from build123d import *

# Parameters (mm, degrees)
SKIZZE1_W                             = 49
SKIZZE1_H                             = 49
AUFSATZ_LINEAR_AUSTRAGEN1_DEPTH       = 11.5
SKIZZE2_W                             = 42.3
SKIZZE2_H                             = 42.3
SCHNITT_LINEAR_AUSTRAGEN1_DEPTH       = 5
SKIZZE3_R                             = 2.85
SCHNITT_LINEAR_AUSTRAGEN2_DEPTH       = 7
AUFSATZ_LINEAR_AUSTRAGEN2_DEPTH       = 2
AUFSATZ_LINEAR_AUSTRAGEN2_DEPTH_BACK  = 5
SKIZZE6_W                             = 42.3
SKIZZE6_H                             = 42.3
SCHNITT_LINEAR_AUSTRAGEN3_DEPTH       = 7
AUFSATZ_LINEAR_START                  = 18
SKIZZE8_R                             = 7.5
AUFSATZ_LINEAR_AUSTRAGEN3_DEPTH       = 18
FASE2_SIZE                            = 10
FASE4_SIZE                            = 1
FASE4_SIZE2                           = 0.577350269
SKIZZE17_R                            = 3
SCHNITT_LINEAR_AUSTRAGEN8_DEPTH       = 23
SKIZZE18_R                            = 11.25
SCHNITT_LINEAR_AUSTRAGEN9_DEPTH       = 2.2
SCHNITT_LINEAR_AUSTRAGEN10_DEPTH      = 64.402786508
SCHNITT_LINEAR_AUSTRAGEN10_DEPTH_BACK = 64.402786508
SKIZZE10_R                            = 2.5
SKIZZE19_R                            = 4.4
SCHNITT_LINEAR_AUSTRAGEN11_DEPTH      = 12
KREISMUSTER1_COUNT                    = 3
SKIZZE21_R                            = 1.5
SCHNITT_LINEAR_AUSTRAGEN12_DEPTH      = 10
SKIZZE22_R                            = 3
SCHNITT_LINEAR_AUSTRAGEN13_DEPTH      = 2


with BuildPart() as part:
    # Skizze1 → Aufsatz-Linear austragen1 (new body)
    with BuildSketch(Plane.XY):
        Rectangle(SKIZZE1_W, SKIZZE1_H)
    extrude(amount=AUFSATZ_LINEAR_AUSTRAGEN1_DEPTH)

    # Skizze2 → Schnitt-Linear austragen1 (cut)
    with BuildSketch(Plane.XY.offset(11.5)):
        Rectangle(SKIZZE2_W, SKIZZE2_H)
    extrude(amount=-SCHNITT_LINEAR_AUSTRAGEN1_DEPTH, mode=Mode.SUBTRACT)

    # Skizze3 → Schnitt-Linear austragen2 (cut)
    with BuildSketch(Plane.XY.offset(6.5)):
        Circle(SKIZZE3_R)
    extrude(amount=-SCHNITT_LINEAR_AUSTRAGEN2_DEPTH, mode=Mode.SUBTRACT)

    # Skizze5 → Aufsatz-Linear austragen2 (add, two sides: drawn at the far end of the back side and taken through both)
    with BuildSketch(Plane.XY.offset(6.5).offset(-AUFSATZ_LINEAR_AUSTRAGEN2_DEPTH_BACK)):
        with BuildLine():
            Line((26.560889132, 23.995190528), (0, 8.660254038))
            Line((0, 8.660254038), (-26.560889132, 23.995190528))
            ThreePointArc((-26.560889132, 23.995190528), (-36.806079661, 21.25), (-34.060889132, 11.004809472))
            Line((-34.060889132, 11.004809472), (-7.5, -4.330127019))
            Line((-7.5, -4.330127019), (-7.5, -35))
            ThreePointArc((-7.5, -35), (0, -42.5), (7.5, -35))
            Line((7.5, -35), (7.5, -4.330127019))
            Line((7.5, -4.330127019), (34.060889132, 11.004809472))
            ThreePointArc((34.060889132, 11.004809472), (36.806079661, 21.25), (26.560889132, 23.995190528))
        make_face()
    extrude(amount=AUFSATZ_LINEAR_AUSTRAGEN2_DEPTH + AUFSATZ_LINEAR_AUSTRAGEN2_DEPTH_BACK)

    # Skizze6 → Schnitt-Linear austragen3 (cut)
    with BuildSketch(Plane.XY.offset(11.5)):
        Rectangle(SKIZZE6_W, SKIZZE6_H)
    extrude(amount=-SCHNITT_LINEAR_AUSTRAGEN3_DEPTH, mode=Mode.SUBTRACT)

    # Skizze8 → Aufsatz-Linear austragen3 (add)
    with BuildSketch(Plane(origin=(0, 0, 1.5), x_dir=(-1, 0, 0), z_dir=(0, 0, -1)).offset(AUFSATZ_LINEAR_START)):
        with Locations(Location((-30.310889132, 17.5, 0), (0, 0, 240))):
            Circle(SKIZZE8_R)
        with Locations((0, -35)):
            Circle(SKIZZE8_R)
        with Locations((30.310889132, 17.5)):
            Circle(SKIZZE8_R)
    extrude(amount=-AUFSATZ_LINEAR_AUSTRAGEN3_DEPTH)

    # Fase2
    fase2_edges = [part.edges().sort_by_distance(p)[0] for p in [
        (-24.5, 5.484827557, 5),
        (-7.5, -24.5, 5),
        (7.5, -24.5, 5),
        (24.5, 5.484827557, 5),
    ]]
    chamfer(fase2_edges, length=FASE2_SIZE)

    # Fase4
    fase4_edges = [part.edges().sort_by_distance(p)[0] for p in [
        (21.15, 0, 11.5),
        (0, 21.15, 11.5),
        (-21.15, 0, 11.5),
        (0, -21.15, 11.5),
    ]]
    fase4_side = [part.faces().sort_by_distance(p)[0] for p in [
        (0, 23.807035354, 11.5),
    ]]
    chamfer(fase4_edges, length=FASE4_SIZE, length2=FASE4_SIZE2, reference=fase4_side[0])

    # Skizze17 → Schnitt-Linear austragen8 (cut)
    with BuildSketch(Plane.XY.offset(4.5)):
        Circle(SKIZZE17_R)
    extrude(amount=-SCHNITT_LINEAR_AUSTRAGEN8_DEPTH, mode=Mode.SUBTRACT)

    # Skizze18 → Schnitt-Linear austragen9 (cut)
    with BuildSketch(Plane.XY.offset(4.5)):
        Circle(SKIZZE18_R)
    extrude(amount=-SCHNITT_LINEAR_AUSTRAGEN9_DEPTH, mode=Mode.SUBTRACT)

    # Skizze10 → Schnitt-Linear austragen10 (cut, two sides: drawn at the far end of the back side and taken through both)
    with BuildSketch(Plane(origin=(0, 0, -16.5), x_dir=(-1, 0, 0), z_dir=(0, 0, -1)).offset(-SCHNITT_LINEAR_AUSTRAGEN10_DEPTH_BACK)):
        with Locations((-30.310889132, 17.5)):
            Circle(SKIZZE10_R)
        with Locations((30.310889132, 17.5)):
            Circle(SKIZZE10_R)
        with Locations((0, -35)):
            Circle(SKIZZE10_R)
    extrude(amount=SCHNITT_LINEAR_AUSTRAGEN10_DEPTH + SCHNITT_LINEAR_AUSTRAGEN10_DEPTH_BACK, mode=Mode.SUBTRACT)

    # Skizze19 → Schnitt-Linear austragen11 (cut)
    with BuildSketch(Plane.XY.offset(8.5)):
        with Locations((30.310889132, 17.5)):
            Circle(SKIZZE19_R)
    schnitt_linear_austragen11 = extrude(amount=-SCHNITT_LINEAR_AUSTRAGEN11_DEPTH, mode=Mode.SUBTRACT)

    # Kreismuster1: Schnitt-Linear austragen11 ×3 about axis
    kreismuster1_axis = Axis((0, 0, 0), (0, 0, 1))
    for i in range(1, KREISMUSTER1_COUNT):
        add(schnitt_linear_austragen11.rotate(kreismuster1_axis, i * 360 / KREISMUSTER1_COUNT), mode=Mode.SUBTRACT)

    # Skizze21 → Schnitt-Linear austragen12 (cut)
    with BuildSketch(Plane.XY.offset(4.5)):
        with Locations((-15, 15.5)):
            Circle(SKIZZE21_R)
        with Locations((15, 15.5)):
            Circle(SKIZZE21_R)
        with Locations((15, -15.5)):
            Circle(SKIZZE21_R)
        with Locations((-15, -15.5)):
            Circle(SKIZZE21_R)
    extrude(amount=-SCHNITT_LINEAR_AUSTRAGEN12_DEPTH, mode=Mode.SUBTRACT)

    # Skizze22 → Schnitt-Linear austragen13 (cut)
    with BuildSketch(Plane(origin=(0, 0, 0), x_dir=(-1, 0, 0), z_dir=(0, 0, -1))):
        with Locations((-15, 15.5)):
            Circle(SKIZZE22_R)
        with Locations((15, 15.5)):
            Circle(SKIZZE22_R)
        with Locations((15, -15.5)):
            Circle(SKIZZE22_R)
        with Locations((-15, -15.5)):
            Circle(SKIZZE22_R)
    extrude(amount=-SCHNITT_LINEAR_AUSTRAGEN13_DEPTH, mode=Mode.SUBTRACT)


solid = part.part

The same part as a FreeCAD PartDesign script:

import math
import FreeCAD as App
import Part
import Sketcher
from FreeCAD import Vector
Q = App.Units.Quantity


def edges_at(feature, points):
    """Names of the edges that pass closest to the given points."""
    edges = feature.Shape.Edges
    near = lambda p: min(range(len(edges)), key=lambda i: edges[i].distToShape(Part.Vertex(*p))[0])
    return sorted({f"Edge{near(p) + 1}" for p in points})


def add_polygon(sketch, points):
    """Adds a closed chain of lines whose ends are joined by coincident constraints."""
    first, n = sketch.GeometryCount, len(points)
    for a, b in zip(points, points[1:] + points[:1]):
        sketch.addGeometry(Part.LineSegment(App.Vector(*a, 0), App.Vector(*b, 0)), False)
    for i in range(n):
        sketch.addConstraint(Sketcher.Constraint("Coincident", first + i, 2, first + (i + 1) % n, 1))

doc = App.newDocument("Part")
body = doc.addObject("PartDesign::Body", "Body")

# Sketch on XY plane
sketch1 = body.newObject("Sketcher::SketchObject", "Sketch")
sketch1.AttachmentSupport = (doc.getObject("XY_Plane"), [""])
sketch1.MapMode = "FlatFace"
add_polygon(sketch1, [(-24, 24), (-24, -24), (24, -24), (24, 24)])  # lines 0-3
sketch1.addConstraint(Sketcher.Constraint("Vertical", 0))
sketch1.addConstraint(Sketcher.Constraint("Horizontal", 1))
sketch1.addConstraint(Sketcher.Constraint("Vertical", 2))
sketch1.addConstraint(Sketcher.Constraint("Horizontal", 3))
sketch1.addConstraint(Sketcher.Constraint("Symmetric", 0, 2, 2, 2, -1, 1))
sketch1.addConstraint(Sketcher.Constraint("Equal", 3, 0))
sketch1.addConstraint(Sketcher.Constraint("DistanceX", 1, 1, 1, 2, Q("49 mm")))
pad1 = body.newObject("PartDesign::Pad", "Pad")
pad1.Profile = sketch1
pad1.Length = 11.5

# Sketch on XY plane
sketch2 = body.newObject("Sketcher::SketchObject", "Sketch001")
sketch2.AttachmentSupport = (doc.getObject("XY_Plane"), [""])
sketch2.MapMode = "FlatFace"
sketch2.AttachmentOffset = App.Placement(Vector(0, 0, 11.5), App.Rotation())
add_polygon(sketch2, [(-21, 21), (-21, -21), (21, -21), (21, 21)])  # lines 0-3
sketch2.addConstraint(Sketcher.Constraint("Vertical", 0))
sketch2.addConstraint(Sketcher.Constraint("Horizontal", 1))
sketch2.addConstraint(Sketcher.Constraint("Vertical", 2))
sketch2.addConstraint(Sketcher.Constraint("Horizontal", 3))
sketch2.addConstraint(Sketcher.Constraint("Symmetric", 0, 2, 2, 2, -1, 1))
sketch2.addConstraint(Sketcher.Constraint("Equal", 3, 0))
sketch2.addConstraint(Sketcher.Constraint("DistanceX", 1, 1, 1, 2, Q("42.3 mm")))
pocket1 = body.newObject("PartDesign::Pocket", "Pocket")
pocket1.Profile = sketch2
pocket1.Length = 5

# Sketch on XY plane
sketch3 = body.newObject("Sketcher::SketchObject", "Sketch002")
sketch3.AttachmentSupport = (doc.getObject("XY_Plane"), [""])
sketch3.MapMode = "FlatFace"
sketch3.AttachmentOffset = App.Placement(Vector(0, 0, 6.5), App.Rotation())
sketch3.addGeometry(Part.Circle(Vector(0, 0, 0), Vector(0, 0, 1), 2.9), False)
sketch3.addConstraint(Sketcher.Constraint("Coincident", 0, 3, -1, 1))
sketch3.addConstraint(Sketcher.Constraint("Diameter", 0, Q("5.7 mm")))
pocket2 = body.newObject("PartDesign::Pocket", "Pocket001")
pocket2.Profile = sketch3
pocket2.Length = 7

# Sketch on XY plane
sketch4 = body.newObject("Sketcher::SketchObject", "Sketch003")
sketch4.AttachmentSupport = (doc.getObject("XY_Plane"), [""])
sketch4.MapMode = "FlatFace"
sketch4.AttachmentOffset = App.Placement(Vector(0, 0, 6.5), App.Rotation())
sketch4.addGeometry(Part.LineSegment(Vector(27, 24, 0), Vector(0, 9, 0)), False)
sketch4.addGeometry(Part.LineSegment(Vector(0, 9, 0), Vector(-27, 24, 0)), False)
sketch4.addGeometry(Part.ArcOfCircle(Part.Circle(Vector(-30, 18, 0), Vector(0, 0, 1), 8), math.radians(60), math.radians(240)), False)
sketch4.addGeometry(Part.LineSegment(Vector(-34, 11, 0), Vector(-8, -4, 0)), False)
sketch4.addGeometry(Part.LineSegment(Vector(-8, -4, 0), Vector(-8, -35, 0)), False)
sketch4.addGeometry(Part.ArcOfCircle(Part.Circle(Vector(0, -35, 0), Vector(0, 0, 1), 8), math.radians(180), math.radians(360)), False)
sketch4.addGeometry(Part.LineSegment(Vector(8, -35, 0), Vector(8, -4, 0)), False)
sketch4.addGeometry(Part.LineSegment(Vector(8, -4, 0), Vector(34, 11, 0)), False)
sketch4.addGeometry(Part.ArcOfCircle(Part.Circle(Vector(30, 18, 0), Vector(0, 0, 1), 8), math.radians(-60), math.radians(120)), False)
sketch4.addConstraint(Sketcher.Constraint("Coincident", 0, 2, 1, 1))
sketch4.addConstraint(Sketcher.Constraint("Tangent", 1, 2, 2, 1))
sketch4.addConstraint(Sketcher.Constraint("Tangent", 2, 2, 3, 1))
sketch4.addConstraint(Sketcher.Constraint("Coincident", 3, 2, 4, 1))
sketch4.addConstraint(Sketcher.Constraint("Tangent", 4, 2, 5, 1))
sketch4.addConstraint(Sketcher.Constraint("Tangent", 5, 2, 6, 1))
sketch4.addConstraint(Sketcher.Constraint("Coincident", 6, 2, 7, 1))
sketch4.addConstraint(Sketcher.Constraint("Tangent", 7, 2, 8, 1))
sketch4.addConstraint(Sketcher.Constraint("Tangent", 8, 2, 0, 1))
sketch4.addConstraint(Sketcher.Constraint("Vertical", 4))
sketch4.addConstraint(Sketcher.Constraint("Vertical", 6))
sketch4.addConstraint(Sketcher.Constraint("Equal", 2, 5))
sketch4.addConstraint(Sketcher.Constraint("Equal", 5, 8))
sketch4.addConstraint(Sketcher.Constraint("Symmetric", 2, 3, 8, 3, -2))
sketch4.addConstraint(Sketcher.Constraint("Symmetric", 3, 2, 6, 2, -2))
sketch4.addConstraint(Sketcher.Constraint("PointOnObject", 0, 2, -2))
sketch4.addConstraint(Sketcher.Constraint("Parallel", 1, 3))
sketch4.addConstraint(Sketcher.Constraint("Equal", 1, 3))
sketch4.addConstraint(Sketcher.Constraint("Radius", 2, Q("7.5 mm")))
sketch4.addConstraint(Sketcher.Constraint("DistanceY", 5, 3, -1, 1, Q("35 mm")))
sketch4.addConstraint(Sketcher.Constraint("DistanceY", -1, 1, 2, 3, Q("17.5 mm")))
sketch4.addConstraint(Sketcher.Constraint("DistanceY", 4, 2, 4, 1, Q("30.669873 mm")))
pad2 = body.newObject("PartDesign::Pad", "Pad001")
pad2.Profile = sketch4
pad2.Type = "TwoLengths"
pad2.Length = 2
pad2.Length2 = 5

# Sketch on XY plane
sketch5 = body.newObject("Sketcher::SketchObject", "Sketch004")
sketch5.AttachmentSupport = (doc.getObject("XY_Plane"), [""])
sketch5.MapMode = "FlatFace"
sketch5.AttachmentOffset = App.Placement(Vector(0, 0, 11.5), App.Rotation())
add_polygon(sketch5, [(-21, 21), (-21, -21), (21, -21), (21, 21)])  # lines 0-3
sketch5.addConstraint(Sketcher.Constraint("Vertical", 0))
sketch5.addConstraint(Sketcher.Constraint("Horizontal", 1))
sketch5.addConstraint(Sketcher.Constraint("Vertical", 2))
sketch5.addConstraint(Sketcher.Constraint("Horizontal", 3))
sketch5.addConstraint(Sketcher.Constraint("Symmetric", 0, 2, 2, 2, -1, 1))
sketch5.addConstraint(Sketcher.Constraint("Equal", 3, 0))
sketch5.addConstraint(Sketcher.Constraint("DistanceX", 1, 1, 1, 2, Q("42.3 mm")))
pocket3 = body.newObject("PartDesign::Pocket", "Pocket002")
pocket3.Profile = sketch5
pocket3.Length = 7

# Sketch on XY plane
sketch6 = body.newObject("Sketcher::SketchObject", "Sketch005")
sketch6.AttachmentSupport = (doc.getObject("XY_Plane"), [""])
sketch6.MapMode = "FlatFace"
sketch6.AttachmentOffset = App.Placement(Vector(0, 0, -16.5), App.Rotation())
sketch6.addGeometry(Part.Circle(Vector(30, 18, 0), Vector(0, 0, 1), 8), False)
sketch6.addGeometry(Part.Circle(Vector(0, -35, 0), Vector(0, 0, 1), 8), False)
sketch6.addGeometry(Part.Circle(Vector(-30, 18, 0), Vector(0, 0, 1), 8), False)
sketch6.addConstraint(Sketcher.Constraint("Equal", 0, 1))
sketch6.addConstraint(Sketcher.Constraint("Equal", 1, 2))
sketch6.addConstraint(Sketcher.Constraint("Symmetric", 0, 3, 2, 3, -2))
sketch6.addConstraint(Sketcher.Constraint("PointOnObject", 1, 3, -2))
sketch6.addConstraint(Sketcher.Constraint("Diameter", 0, Q("15 mm")))
sketch6.addConstraint(Sketcher.Constraint("DistanceY", 1, 3, -1, 1, Q("35 mm")))
sketch6.addConstraint(Sketcher.Constraint("DistanceY", -1, 1, 0, 3, Q("17.5 mm")))
sketch6.addConstraint(Sketcher.Constraint("DistanceX", -1, 1, 0, 3, Q("30.310889 mm")))
pad3 = body.newObject("PartDesign::Pad", "Pad002")
pad3.Profile = sketch6
pad3.Length = 18
doc.recompute()

chamfer = body.newObject("PartDesign::Chamfer", "Chamfer")
chamfer.Base = (pad3, edges_at(pad3, [
    (-24.5, 5.485, 5),
    (-7.5, -24.5, 5),
    (7.5, -24.5, 5),
    (24.5, 5.485, 5),
]))
chamfer.Size = 10
doc.recompute()

chamfer2 = body.newObject("PartDesign::Chamfer", "Chamfer001")
chamfer2.Base = (chamfer, edges_at(chamfer, [
    (21.15, 0, 11.5),
    (0, 21.15, 11.5),
    (-21.15, 0, 11.5),
    (0, -21.15, 11.5),
]))
chamfer2.ChamferType = "Two distances"
chamfer2.Size = 1
chamfer2.Size2 = 0.57735

# Sketch on XY plane
sketch7 = body.newObject("Sketcher::SketchObject", "Sketch006")
sketch7.AttachmentSupport = (doc.getObject("XY_Plane"), [""])
sketch7.MapMode = "FlatFace"
sketch7.AttachmentOffset = App.Placement(Vector(0, 0, 4.5), App.Rotation())
sketch7.addGeometry(Part.Circle(Vector(0, 0, 0), Vector(0, 0, 1), 3), False)
sketch7.addConstraint(Sketcher.Constraint("Coincident", 0, 3, -1, 1))
sketch7.addConstraint(Sketcher.Constraint("Diameter", 0, Q("6 mm")))
pocket4 = body.newObject("PartDesign::Pocket", "Pocket003")
pocket4.Profile = sketch7
pocket4.Length = 23

# Sketch on XY plane
sketch8 = body.newObject("Sketcher::SketchObject", "Sketch007")
sketch8.AttachmentSupport = (doc.getObject("XY_Plane"), [""])
sketch8.MapMode = "FlatFace"
sketch8.AttachmentOffset = App.Placement(Vector(0, 0, 4.5), App.Rotation())
sketch8.addGeometry(Part.Circle(Vector(0, 0, 0), Vector(0, 0, 1), 11), False)
sketch8.addConstraint(Sketcher.Constraint("Coincident", 0, 3, -1, 1))
sketch8.addConstraint(Sketcher.Constraint("Diameter", 0, Q("22.5 mm")))
pocket5 = body.newObject("PartDesign::Pocket", "Pocket004")
pocket5.Profile = sketch8
pocket5.Length = 2.2

# Sketch on XY plane
sketch9 = body.newObject("Sketcher::SketchObject", "Sketch008")
sketch9.AttachmentSupport = (doc.getObject("XY_Plane"), [""])
sketch9.MapMode = "FlatFace"
sketch9.AttachmentOffset = App.Placement(Vector(0, 0, -16.5), App.Rotation())
sketch9.addGeometry(Part.Circle(Vector(30.3, 17.5, 0), Vector(0, 0, 1), 2.5), False)
sketch9.addGeometry(Part.Circle(Vector(-30.3, 17.5, 0), Vector(0, 0, 1), 2.5), False)
sketch9.addGeometry(Part.Circle(Vector(0, -35, 0), Vector(0, 0, 1), 2.5), False)
sketch9.addConstraint(Sketcher.Constraint("Equal", 0, 1))
sketch9.addConstraint(Sketcher.Constraint("Equal", 1, 2))
sketch9.addConstraint(Sketcher.Constraint("Symmetric", 0, 3, 1, 3, -2))
sketch9.addConstraint(Sketcher.Constraint("PointOnObject", 2, 3, -2))
sketch9.addConstraint(Sketcher.Constraint("Diameter", 0, Q("5 mm")))
sketch9.addConstraint(Sketcher.Constraint("DistanceY", 2, 3, -1, 1, Q("35 mm")))
sketch9.addConstraint(Sketcher.Constraint("DistanceY", -1, 1, 0, 3, Q("17.5 mm")))
sketch9.addConstraint(Sketcher.Constraint("DistanceX", -1, 1, 0, 3, Q("30.310889 mm")))
pocket6 = body.newObject("PartDesign::Pocket", "Pocket005")
pocket6.Profile = sketch9
pocket6.Type = "ThroughAll"
pocket6.Midplane = True

# Sketch on XY plane
sketch10 = body.newObject("Sketcher::SketchObject", "Sketch009")
sketch10.AttachmentSupport = (doc.getObject("XY_Plane"), [""])
sketch10.MapMode = "FlatFace"
sketch10.AttachmentOffset = App.Placement(Vector(0, 0, 8.5), App.Rotation())
sketch10.addGeometry(Part.Circle(Vector(30.3, 17.5, 0), Vector(0, 0, 1), 4.4), False)
sketch10.addConstraint(Sketcher.Constraint("Diameter", 0, Q("8.8 mm")))
sketch10.addConstraint(Sketcher.Constraint("DistanceY", -1, 1, 0, 3, Q("17.5 mm")))
sketch10.addConstraint(Sketcher.Constraint("DistanceX", -1, 1, 0, 3, Q("30.310889 mm")))
pocket7 = body.newObject("PartDesign::Pocket", "Pocket006")
pocket7.Profile = sketch10
pocket7.Length = 12
doc.recompute()

polarpattern = body.newObject("PartDesign::PolarPattern", "PolarPattern")
polarpattern.Originals = [pocket7]
polarpattern.Axis = (doc.getObject("Z_Axis"), [""])
polarpattern.Angle = 360
polarpattern.Occurrences = 3
body.Tip = polarpattern

# Sketch on XY plane
sketch11 = body.newObject("Sketcher::SketchObject", "Sketch010")
sketch11.AttachmentSupport = (doc.getObject("XY_Plane"), [""])
sketch11.MapMode = "FlatFace"
sketch11.AttachmentOffset = App.Placement(Vector(0, 0, 4.5), App.Rotation())
sketch11.addGeometry(Part.Circle(Vector(-15, 15.5, 0), Vector(0, 0, 1), 1.5), False)
sketch11.addGeometry(Part.Circle(Vector(15, 15.5, 0), Vector(0, 0, 1), 1.5), False)
sketch11.addGeometry(Part.Circle(Vector(15, -15.5, 0), Vector(0, 0, 1), 1.5), False)
sketch11.addGeometry(Part.Circle(Vector(-15, -15.5, 0), Vector(0, 0, 1), 1.5), False)
sketch11.addConstraint(Sketcher.Constraint("Equal", 0, 1))
sketch11.addConstraint(Sketcher.Constraint("Equal", 1, 2))
sketch11.addConstraint(Sketcher.Constraint("Equal", 2, 3))
sketch11.addConstraint(Sketcher.Constraint("Symmetric", 0, 3, 2, 3, -1, 1))
sketch11.addConstraint(Sketcher.Constraint("Symmetric", 1, 3, 3, 3, -1, 1))
sketch11.addConstraint(Sketcher.Constraint("Symmetric", 0, 3, 1, 3, -2))
sketch11.addConstraint(Sketcher.Constraint("Diameter", 0, Q("3 mm")))
sketch11.addConstraint(Sketcher.Constraint("DistanceX", 0, 3, -1, 1, Q("15 mm")))
sketch11.addConstraint(Sketcher.Constraint("DistanceY", 2, 3, 1, 3, Q("31 mm")))
pocket8 = body.newObject("PartDesign::Pocket", "Pocket007")
pocket8.Profile = sketch11
pocket8.Length = 10

# Sketch on XY plane
sketch12 = body.newObject("Sketcher::SketchObject", "Sketch011")
sketch12.AttachmentSupport = (doc.getObject("XY_Plane"), [""])
sketch12.MapMode = "FlatFace"
sketch12.addGeometry(Part.Circle(Vector(15, 15.5, 0), Vector(0, 0, 1), 3), False)
sketch12.addGeometry(Part.Circle(Vector(-15, 15.5, 0), Vector(0, 0, 1), 3), False)
sketch12.addGeometry(Part.Circle(Vector(-15, -15.5, 0), Vector(0, 0, 1), 3), False)
sketch12.addGeometry(Part.Circle(Vector(15, -15.5, 0), Vector(0, 0, 1), 3), False)
sketch12.addConstraint(Sketcher.Constraint("Equal", 0, 1))
sketch12.addConstraint(Sketcher.Constraint("Equal", 1, 2))
sketch12.addConstraint(Sketcher.Constraint("Equal", 2, 3))
sketch12.addConstraint(Sketcher.Constraint("Symmetric", 0, 3, 2, 3, -1, 1))
sketch12.addConstraint(Sketcher.Constraint("Symmetric", 1, 3, 3, 3, -1, 1))
sketch12.addConstraint(Sketcher.Constraint("Symmetric", 0, 3, 1, 3, -2))
sketch12.addConstraint(Sketcher.Constraint("Diameter", 0, Q("6 mm")))
sketch12.addConstraint(Sketcher.Constraint("DistanceX", -1, 1, 0, 3, Q("15 mm")))
sketch12.addConstraint(Sketcher.Constraint("DistanceY", 2, 3, 1, 3, Q("31 mm")))
pocket9 = body.newObject("PartDesign::Pocket", "Pocket008")
pocket9.Profile = sketch12
pocket9.Length = 2
pocket9.Reversed = True

doc.recompute()
